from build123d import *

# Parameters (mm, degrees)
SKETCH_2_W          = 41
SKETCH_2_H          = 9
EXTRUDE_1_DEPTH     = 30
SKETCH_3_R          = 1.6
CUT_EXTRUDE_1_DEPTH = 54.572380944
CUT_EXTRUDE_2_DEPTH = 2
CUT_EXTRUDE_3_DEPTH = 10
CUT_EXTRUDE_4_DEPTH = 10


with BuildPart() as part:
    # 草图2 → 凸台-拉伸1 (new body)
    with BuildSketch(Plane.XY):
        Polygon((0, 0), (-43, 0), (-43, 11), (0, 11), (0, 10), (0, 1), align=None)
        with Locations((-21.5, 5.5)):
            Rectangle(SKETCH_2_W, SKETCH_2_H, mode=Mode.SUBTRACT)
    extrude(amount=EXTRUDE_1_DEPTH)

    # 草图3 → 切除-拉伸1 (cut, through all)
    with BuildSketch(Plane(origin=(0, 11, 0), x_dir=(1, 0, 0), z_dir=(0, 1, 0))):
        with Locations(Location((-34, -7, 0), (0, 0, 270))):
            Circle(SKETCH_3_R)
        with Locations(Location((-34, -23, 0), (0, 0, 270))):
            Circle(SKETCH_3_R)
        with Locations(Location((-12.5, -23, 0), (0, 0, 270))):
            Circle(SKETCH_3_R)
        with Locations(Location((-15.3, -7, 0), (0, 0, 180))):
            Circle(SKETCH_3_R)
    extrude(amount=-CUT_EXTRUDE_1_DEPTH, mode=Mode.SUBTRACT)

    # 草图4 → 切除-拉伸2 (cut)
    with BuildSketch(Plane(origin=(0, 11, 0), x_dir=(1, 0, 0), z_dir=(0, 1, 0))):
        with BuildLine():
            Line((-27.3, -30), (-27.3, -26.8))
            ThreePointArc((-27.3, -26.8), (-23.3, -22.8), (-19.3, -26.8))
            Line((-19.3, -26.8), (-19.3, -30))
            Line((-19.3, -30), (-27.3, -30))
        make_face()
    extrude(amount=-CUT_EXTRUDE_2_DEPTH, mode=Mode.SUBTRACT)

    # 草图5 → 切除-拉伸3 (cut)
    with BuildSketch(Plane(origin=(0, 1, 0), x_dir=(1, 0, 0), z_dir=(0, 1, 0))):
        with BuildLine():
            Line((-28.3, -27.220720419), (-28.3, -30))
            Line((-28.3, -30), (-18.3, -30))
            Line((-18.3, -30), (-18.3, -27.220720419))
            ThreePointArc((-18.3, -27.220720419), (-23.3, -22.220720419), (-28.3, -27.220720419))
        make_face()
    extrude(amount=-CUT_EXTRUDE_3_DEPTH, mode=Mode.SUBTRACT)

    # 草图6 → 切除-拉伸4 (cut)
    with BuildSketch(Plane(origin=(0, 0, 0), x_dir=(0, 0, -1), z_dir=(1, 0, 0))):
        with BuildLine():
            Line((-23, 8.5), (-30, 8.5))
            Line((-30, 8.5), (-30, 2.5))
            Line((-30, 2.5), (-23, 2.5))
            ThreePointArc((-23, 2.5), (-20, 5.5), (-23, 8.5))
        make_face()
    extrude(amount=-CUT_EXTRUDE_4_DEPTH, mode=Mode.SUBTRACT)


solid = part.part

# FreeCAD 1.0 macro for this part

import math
import FreeCAD as App
import Part
import Sketcher
from FreeCAD import Vector
Q = App.Units.Quantity


def add_polygon(sketch, points):
    """Adds a closed chain of lines whose ends are joined by coincident constraints."""
    first, n = sketch.GeometryCount, len(points)
    for a, b in zip(points, points[1:] + points[:1]):
        sketch.addGeometry(Part.LineSegment(App.Vector(*a, 0), App.Vector(*b, 0)), False)
    for i in range(n):
        sketch.addConstraint(Sketcher.Constraint("Coincident", first + i, 2, first + (i + 1) % n, 1))

doc = App.newDocument("Part")
params = doc.addObject("Spreadsheet::Sheet", "Params")
for row, (alias, value) in enumerate([
    ("sketch1_width", "43 mm"),
    ("sketch1_width2", "41 mm"),
    ("sketch1_height", "11 mm"),
    ("sketch1_height2", "9 mm"),
    ("pad1_length", "30 mm"),
    ("sketch2_diameter", "3.2 mm"),
    ("sketch3_radius", "4 mm"),
    ("sketch3_height", "3.2 mm"),
    ("pocket2_length", "2 mm"),
    ("sketch4_radius", "5 mm"),
    ("pocket3_length", "10 mm"),
    ("sketch5_radius", "3 mm"),
    ("sketch5_height", "7 mm"),
    ("pocket4_length", "10 mm"),
], start=1):
    params.set(f"A{row}", alias)
    params.set(f"B{row}", "=" + value)
    params.setAlias(f"B{row}", alias)

body = doc.addObject("PartDesign::Body", "Body")

# Sketch on XY plane
sketch1 = doc.addObject("Sketcher::SketchObject", "Sketch")
body.addObject(sketch1)
sketch1.AttachmentSupport = (doc.XY_Plane, [""])
sketch1.MapMode = "FlatFace"
add_polygon(sketch1, [(-43, 0), (0, 0), (0, 11), (-43, 11)])  # lines 0-3
add_polygon(sketch1, [(-42, 1), (-42, 10), (-1, 10), (-1, 1)])  # lines 4-7
sketch1.addConstraint([
    Sketcher.Constraint("Horizontal", 0),
    Sketcher.Constraint("Vertical", 1),
    Sketcher.Constraint("Horizontal", 2),
    Sketcher.Constraint("Vertical", 3),
    Sketcher.Constraint("Vertical", 4),
    Sketcher.Constraint("Horizontal", 5),
    Sketcher.Constraint("Vertical", 6),
    Sketcher.Constraint("Horizontal", 7),
    Sketcher.Constraint("Coincident", 0, 2, -1, 1),
    Sketcher.Constraint("DistanceX", 0, 1, 0, 2, Q("43 mm")),
    Sketcher.Constraint("DistanceX", 5, 1, 5, 2, Q("41 mm")),
    Sketcher.Constraint("DistanceY", 1, 1, 1, 2, Q("11 mm")),
    Sketcher.Constraint("DistanceY", 4, 1, 4, 2, Q("9 mm")),
    Sketcher.Constraint("DistanceX", 4, 2, -1, 1, Q("42 mm")),
    Sketcher.Constraint("DistanceY", -1, 1, 4, 2, Q("10 mm")),
])
sketch1.setExpression("Constraints[17]", "Params.sketch1_width")
sketch1.setExpression("Constraints[18]", "Params.sketch1_width2")
sketch1.setExpression("Constraints[19]", "Params.sketch1_height")
sketch1.setExpression("Constraints[20]", "Params.sketch1_height2")
pad1 = doc.addObject("PartDesign::Pad", "Pad")
body.addObject(pad1)
pad1.Profile = sketch1
pad1.setExpression("Length", "Params.pad1_length")

# Sketch on XZ plane
sketch2 = doc.addObject("Sketcher::SketchObject", "Sketch001")
body.addObject(sketch2)
sketch2.AttachmentSupport = (doc.XZ_Plane, [""])
sketch2.MapMode = "FlatFace"
sketch2.AttachmentOffset = App.Placement(Vector(0, 0, -11), App.Rotation())
sketch2.addGeometry([
    Part.Circle(Vector(-34, 7, 0), Vector(0, 0, 1), 1.6),
    Part.Circle(Vector(-34, 23, 0), Vector(0, 0, 1), 1.6),
    Part.Circle(Vector(-12.5, 23, 0), Vector(0, 0, 1), 1.6),
    Part.Circle(Vector(-15.3, 7, 0), Vector(0, 0, 1), 1.6),
], False)
sketch2.addConstraint([
    Sketcher.Constraint("Equal", 0, 1),
    Sketcher.Constraint("Equal", 1, 2),
    Sketcher.Constraint("Equal", 2, 3),
    Sketcher.Constraint("Horizontal", 1, 3, 2, 3),
    Sketcher.Constraint("Horizontal", 0, 3, 3, 3),
    Sketcher.Constraint("Vertical", 0, 3, 1, 3),
    Sketcher.Constraint("Diameter", 0, Q("3.2 mm")),
    Sketcher.Constraint("DistanceX", 0, 3, -1, 1, Q("34 mm")),
    Sketcher.Constraint("DistanceY", -1, 1, 0, 3, Q("7 mm")),
    Sketcher.Constraint("DistanceY", -1, 1, 1, 3, Q("23 mm")),
    Sketcher.Constraint("DistanceX", 2, 3, -1, 1, Q("12.5 mm")),
    Sketcher.Constraint("DistanceX", 3, 3, -1, 1, Q("15.3 mm")),
])
sketch2.setExpression("Constraints[6]", "Params.sketch2_diameter")
pocket1 = doc.addObject("PartDesign::Pocket", "Pocket")
body.addObject(pocket1)
pocket1.Profile = sketch2
pocket1.Type = "ThroughAll"
pocket1.Reversed = True

# Sketch on XZ plane
sketch3 = doc.addObject("Sketcher::SketchObject", "Sketch002")
body.addObject(sketch3)
sketch3.AttachmentSupport = (doc.XZ_Plane, [""])
sketch3.MapMode = "FlatFace"
sketch3.AttachmentOffset = App.Placement(Vector(0, 0, -11), App.Rotation())
sketch3.addGeometry([
    Part.LineSegment(Vector(-27.3, 26.8, 0), Vector(-27.3, 30, 0)),
    Part.LineSegment(Vector(-27.3, 30, 0), Vector(-19.3, 30, 0)),
    Part.LineSegment(Vector(-19.3, 30, 0), Vector(-19.3, 26.8, 0)),
    Part.ArcOfCircle(Part.Circle(Vector(-23.3, 26.8, 0), Vector(0, 0, 1), 4), math.radians(180), math.radians(360)),
], False)
sketch3.addConstraint([
    Sketcher.Constraint("Coincident", 0, 2, 1, 1),
    Sketcher.Constraint("Coincident", 1, 2, 2, 1),
    Sketcher.Constraint("Tangent", 2, 2, 3, 2),
    Sketcher.Constraint("Tangent", 3, 1, 0, 1),
    Sketcher.Constraint("Vertical", 0),
    Sketcher.Constraint("Horizontal", 1),
    Sketcher.Constraint("Vertical", 2),
    Sketcher.Constraint("Radius", 3, Q("4 mm")),
    Sketcher.Constraint("DistanceY", 0, 1, 0, 2, Q("3.2 mm")),
    Sketcher.Constraint("DistanceY", -1, 1, 0, 2, Q("30 mm")),
    Sketcher.Constraint("DistanceX", 3, 3, -1, 1, Q("23.3 mm")),
])
sketch3.setExpression("Constraints[7]", "Params.sketch3_radius")
sketch3.setExpression("Constraints[8]", "Params.sketch3_height")
pocket2 = doc.addObject("PartDesign::Pocket", "Pocket001")
body.addObject(pocket2)
pocket2.Profile = sketch3
pocket2.setExpression("Length", "Params.pocket2_length")
pocket2.Reversed = True

# Sketch on XZ plane
sketch4 = doc.addObject("Sketcher::SketchObject", "Sketch003")
body.addObject(sketch4)
sketch4.AttachmentSupport = (doc.XZ_Plane, [""])
sketch4.MapMode = "FlatFace"
sketch4.AttachmentOffset = App.Placement(Vector(0, 0, -1), App.Rotation())
sketch4.addGeometry([
    Part.LineSegment(Vector(-28.3, 27.2, 0), Vector(-28.3, 30, 0)),
    Part.LineSegment(Vector(-28.3, 30, 0), Vector(-18.3, 30, 0)),
    Part.LineSegment(Vector(-18.3, 30, 0), Vector(-18.3, 27.2, 0)),
    Part.ArcOfCircle(Part.Circle(Vector(-23.3, 27.2, 0), Vector(0, 0, 1), 5), math.radians(180), math.radians(360)),
], False)
sketch4.addConstraint([
    Sketcher.Constraint("Coincident", 0, 2, 1, 1),
    Sketcher.Constraint("Coincident", 1, 2, 2, 1),
    Sketcher.Constraint("Tangent", 2, 2, 3, 2),
    Sketcher.Constraint("Tangent", 3, 1, 0, 1),
    Sketcher.Constraint("Vertical", 0),
    Sketcher.Constraint("Horizontal", 1),
    Sketcher.Constraint("Vertical", 2),
    Sketcher.Constraint("Radius", 3, Q("5 mm")),
    Sketcher.Constraint("DistanceY", -1, 1, 0, 2, Q("30 mm")),
    Sketcher.Constraint("DistanceX", 3, 3, -1, 1, Q("23.3 mm")),
    Sketcher.Constraint("DistanceY", 0, 1, 0, 2, Q("2.77928 mm")),
])
sketch4.setExpression("Constraints[7]", "Params.sketch4_radius")
pocket3 = doc.addObject("PartDesign::Pocket", "Pocket002")
body.addObject(pocket3)
pocket3.Profile = sketch4
pocket3.setExpression("Length", "Params.pocket3_length")
pocket3.Reversed = True

# Sketch on YZ plane
sketch5 = doc.addObject("Sketcher::SketchObject", "Sketch004")
body.addObject(sketch5)
sketch5.AttachmentSupport = (doc.YZ_Plane, [""])
sketch5.MapMode = "FlatFace"
sketch5.addGeometry([
    Part.LineSegment(Vector(8.5, 23, 0), Vector(8.5, 30, 0)),
    Part.LineSegment(Vector(8.5, 30, 0), Vector(2.5, 30, 0)),
    Part.LineSegment(Vector(2.5, 30, 0), Vector(2.5, 23, 0)),
    Part.ArcOfCircle(Part.Circle(Vector(5.5, 23, 0), Vector(0, 0, 1), 3), math.radians(180), math.radians(360)),
], False)
sketch5.addConstraint([
    Sketcher.Constraint("Coincident", 0, 2, 1, 1),
    Sketcher.Constraint("Coincident", 1, 2, 2, 1),
    Sketcher.Constraint("Tangent", 2, 2, 3, 1),
    Sketcher.Constraint("Tangent", 3, 2, 0, 1),
    Sketcher.Constraint("Vertical", 0),
    Sketcher.Constraint("Horizontal", 1),
    Sketcher.Constraint("Vertical", 2),
    Sketcher.Constraint("Radius", 3, Q("3 mm")),
    Sketcher.Constraint("DistanceY", 0, 1, 0, 2, Q("7 mm")),
    Sketcher.Constraint("DistanceY", -1, 1, 3, 3, Q("23 mm")),
    Sketcher.Constraint("DistanceX", -1, 1, 3, 3, Q("5.5 mm")),
])
sketch5.setExpression("Constraints[7]", "Params.sketch5_radius")
sketch5.setExpression("Constraints[8]", "Params.sketch5_height")
pocket4 = doc.addObject("PartDesign::Pocket", "Pocket003")
body.addObject(pocket4)
pocket4.Profile = sketch5
pocket4.setExpression("Length", "Params.pocket4_length")

doc.recompute()
